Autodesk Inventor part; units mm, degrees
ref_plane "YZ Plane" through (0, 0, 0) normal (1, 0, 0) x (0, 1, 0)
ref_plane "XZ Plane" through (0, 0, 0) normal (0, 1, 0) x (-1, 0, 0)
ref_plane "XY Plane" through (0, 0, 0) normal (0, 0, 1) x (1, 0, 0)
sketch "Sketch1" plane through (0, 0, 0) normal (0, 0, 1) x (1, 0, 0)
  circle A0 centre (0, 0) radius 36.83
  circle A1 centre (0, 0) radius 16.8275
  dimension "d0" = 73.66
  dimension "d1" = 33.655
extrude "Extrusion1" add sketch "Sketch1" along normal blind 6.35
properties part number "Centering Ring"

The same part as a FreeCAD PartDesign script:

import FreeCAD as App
import Part
import Sketcher
Q = App.Units.Quantity

doc = App.newDocument("Part")
body = doc.addObject("PartDesign::Body", "Body")

# Sketch on XY plane
sketch1 = doc.addObject("Sketcher::SketchObject", "Sketch")
body.addObject(sketch1)
sketch1.AttachmentSupport = (doc.XY_Plane, [""])
sketch1.MapMode = "FlatFace"
sketch1.addGeometry(Part.Circle(App.Vector(0, 0, 0), App.Vector(0, 0, 1), 37), False)
sketch1.addGeometry(Part.Circle(App.Vector(0, 0, 0), App.Vector(0, 0, 1), 17), False)
sketch1.addConstraint(Sketcher.Constraint("Coincident", 0, 3, -1, 1))
sketch1.addConstraint(Sketcher.Constraint("Coincident", 1, 3, -1, 1))
sketch1.addConstraint(Sketcher.Constraint("Diameter", 0, Q("2.9 in")))
sketch1.addConstraint(Sketcher.Constraint("Diameter", 1, Q("1.325 in")))
pad1 = doc.addObject("PartDesign::Pad", "Pad")
body.addObject(pad1)
pad1.Profile = sketch1
pad1.Length = Q("0.25 in")

doc.recompute()
